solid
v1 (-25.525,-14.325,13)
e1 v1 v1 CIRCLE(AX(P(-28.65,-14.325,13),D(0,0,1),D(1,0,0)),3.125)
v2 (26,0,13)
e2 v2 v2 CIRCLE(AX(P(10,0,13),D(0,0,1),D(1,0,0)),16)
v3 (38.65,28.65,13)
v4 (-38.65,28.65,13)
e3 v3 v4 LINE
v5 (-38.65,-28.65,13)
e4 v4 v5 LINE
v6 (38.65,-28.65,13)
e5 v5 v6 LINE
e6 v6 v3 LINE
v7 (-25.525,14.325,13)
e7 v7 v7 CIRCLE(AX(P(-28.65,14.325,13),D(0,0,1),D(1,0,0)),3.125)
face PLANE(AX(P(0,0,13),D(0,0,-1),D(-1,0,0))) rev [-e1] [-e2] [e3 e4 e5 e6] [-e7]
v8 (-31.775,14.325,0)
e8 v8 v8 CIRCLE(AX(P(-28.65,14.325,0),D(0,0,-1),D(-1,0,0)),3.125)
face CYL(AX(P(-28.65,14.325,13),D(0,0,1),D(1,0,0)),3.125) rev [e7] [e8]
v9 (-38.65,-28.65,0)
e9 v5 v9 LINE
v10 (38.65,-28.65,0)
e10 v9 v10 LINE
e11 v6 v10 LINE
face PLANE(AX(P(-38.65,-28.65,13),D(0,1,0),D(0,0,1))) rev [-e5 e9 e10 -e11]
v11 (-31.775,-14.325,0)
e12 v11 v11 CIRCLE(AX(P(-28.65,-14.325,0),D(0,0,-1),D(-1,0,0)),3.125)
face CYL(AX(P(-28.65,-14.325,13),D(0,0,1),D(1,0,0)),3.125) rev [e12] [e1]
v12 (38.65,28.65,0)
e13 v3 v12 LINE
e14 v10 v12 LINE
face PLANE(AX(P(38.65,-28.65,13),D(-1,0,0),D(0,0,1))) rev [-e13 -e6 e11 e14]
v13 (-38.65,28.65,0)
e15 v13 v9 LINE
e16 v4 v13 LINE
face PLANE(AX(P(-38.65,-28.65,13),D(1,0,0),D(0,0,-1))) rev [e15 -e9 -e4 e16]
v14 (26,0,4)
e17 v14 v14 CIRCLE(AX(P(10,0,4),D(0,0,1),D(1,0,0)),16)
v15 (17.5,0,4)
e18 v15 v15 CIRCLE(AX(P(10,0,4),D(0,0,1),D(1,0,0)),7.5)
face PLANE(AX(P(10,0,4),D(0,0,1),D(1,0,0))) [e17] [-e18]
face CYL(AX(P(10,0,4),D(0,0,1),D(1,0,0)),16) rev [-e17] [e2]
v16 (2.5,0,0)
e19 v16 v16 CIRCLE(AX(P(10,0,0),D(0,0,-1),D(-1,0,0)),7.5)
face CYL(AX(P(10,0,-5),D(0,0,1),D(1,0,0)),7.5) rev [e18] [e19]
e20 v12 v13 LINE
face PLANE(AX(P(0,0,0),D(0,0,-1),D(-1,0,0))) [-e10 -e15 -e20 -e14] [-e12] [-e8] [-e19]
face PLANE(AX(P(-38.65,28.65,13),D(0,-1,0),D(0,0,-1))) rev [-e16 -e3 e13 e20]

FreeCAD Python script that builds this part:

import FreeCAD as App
import Part
import Sketcher
from FreeCAD import Vector
Q = App.Units.Quantity


def add_polygon(sketch, points):
    """Adds a closed chain of lines whose ends are joined by coincident constraints."""
    first, n = sketch.GeometryCount, len(points)
    for a, b in zip(points, points[1:] + points[:1]):
        sketch.addGeometry(Part.LineSegment(App.Vector(*a, 0), App.Vector(*b, 0)), False)
    for i in range(n):
        sketch.addConstraint(Sketcher.Constraint("Coincident", first + i, 2, first + (i + 1) % n, 1))

doc = App.newDocument("Part")
body = doc.addObject("PartDesign::Body", "Body")

sketch1 = body.newObject("Sketcher::SketchObject", "Sketch")
sketch1.AttachmentSupport = (doc.getObject("XY_Plane"), [""])
sketch1.MapMode = "FlatFace"
add_polygon(sketch1, [(-38.65, 28.65), (-38.65, -28.65), (38.65, -28.65), (38.65, 28.65)])
sketch1.addConstraint([
    Sketcher.Constraint("Vertical", 0),
    Sketcher.Constraint("Horizontal", 1),
    Sketcher.Constraint("Vertical", 2),
    Sketcher.Constraint("Horizontal", 3),
    Sketcher.Constraint("Symmetric", 0, 2, 2, 2, -1, 1),
    Sketcher.Constraint("DistanceX", 1, 1, 1, 2, Q("77.3 mm")),
    Sketcher.Constraint("DistanceY", 0, 2, 0, 1, Q("57.3 mm")),
])
pad1 = body.newObject("PartDesign::Pad", "Pad")
pad1.Profile = sketch1
pad1.Length = 13

sketch2 = body.newObject("Sketcher::SketchObject", "Sketch001")
sketch2.AttachmentSupport = (doc.getObject("XY_Plane"), [""])
sketch2.MapMode = "FlatFace"
sketch2.AttachmentOffset = App.Placement(Vector(0, 0, 13), App.Rotation())
sketch2.addGeometry([
    Part.Circle(Vector(-28.65, 14.325, 0), Vector(0, 0, 1), 3.125),
    Part.Circle(Vector(-28.65, -14.325, 0), Vector(0, 0, 1), 3.125),
], False)
sketch2.addConstraint([
    Sketcher.Constraint("Equal", 0, 1),
    Sketcher.Constraint("Symmetric", 0, 3, 1, 3, -1),
    Sketcher.Constraint("Diameter", 0, Q("6.25 mm")),
    Sketcher.Constraint("DistanceX", 0, 3, -1, 1, Q("28.65 mm")),
    Sketcher.Constraint("DistanceY", 1, 3, 0, 3, Q("28.65 mm")),
])
doc.recompute()
hole = body.newObject("PartDesign::Hole", "Hole")
hole.Profile = sketch2
hole.ThreadType = "None"
hole.Diameter = 6.25
hole.DepthType = "Dimension"
hole.Depth = 20
hole.DrillPoint = "Angled"
hole.DrillPointAngle = 118

sketch3 = body.newObject("Sketcher::SketchObject", "Sketch002")
sketch3.AttachmentSupport = (doc.getObject("XY_Plane"), [""])
sketch3.MapMode = "FlatFace"
sketch3.AttachmentOffset = App.Placement(Vector(0, 0, 13), App.Rotation())
sketch3.addGeometry(Part.Circle(Vector(10, 0, 0), Vector(0, 0, 1), 16), False)
sketch3.addConstraint([
    Sketcher.Constraint("PointOnObject", 0, 3, -1),
    Sketcher.Constraint("Diameter", 0, Q("32 mm")),
    Sketcher.Constraint("DistanceX", -1, 1, 0, 3, Q("10 mm")),
])
pocket1 = body.newObject("PartDesign::Pocket", "Pocket")
pocket1.Profile = sketch3
pocket1.Length = 9

sketch4 = body.newObject("Sketcher::SketchObject", "Sketch003")
sketch4.AttachmentSupport = (doc.getObject("XY_Plane"), [""])
sketch4.MapMode = "FlatFace"
sketch4.AttachmentOffset = App.Placement(Vector(0, 0, 4), App.Rotation())
sketch4.addGeometry(Part.Circle(Vector(10, 0, 0), Vector(0, 0, 1), 7.5), False)
sketch4.addConstraint([
    Sketcher.Constraint("PointOnObject", 0, 3, -1),
    Sketcher.Constraint("Diameter", 0, Q("15 mm")),
    Sketcher.Constraint("DistanceX", -1, 1, 0, 3, Q("10 mm")),
])
pocket2 = body.newObject("PartDesign::Pocket", "Pocket001")
pocket2.Profile = sketch4
pocket2.Length = 9

doc.recompute()
